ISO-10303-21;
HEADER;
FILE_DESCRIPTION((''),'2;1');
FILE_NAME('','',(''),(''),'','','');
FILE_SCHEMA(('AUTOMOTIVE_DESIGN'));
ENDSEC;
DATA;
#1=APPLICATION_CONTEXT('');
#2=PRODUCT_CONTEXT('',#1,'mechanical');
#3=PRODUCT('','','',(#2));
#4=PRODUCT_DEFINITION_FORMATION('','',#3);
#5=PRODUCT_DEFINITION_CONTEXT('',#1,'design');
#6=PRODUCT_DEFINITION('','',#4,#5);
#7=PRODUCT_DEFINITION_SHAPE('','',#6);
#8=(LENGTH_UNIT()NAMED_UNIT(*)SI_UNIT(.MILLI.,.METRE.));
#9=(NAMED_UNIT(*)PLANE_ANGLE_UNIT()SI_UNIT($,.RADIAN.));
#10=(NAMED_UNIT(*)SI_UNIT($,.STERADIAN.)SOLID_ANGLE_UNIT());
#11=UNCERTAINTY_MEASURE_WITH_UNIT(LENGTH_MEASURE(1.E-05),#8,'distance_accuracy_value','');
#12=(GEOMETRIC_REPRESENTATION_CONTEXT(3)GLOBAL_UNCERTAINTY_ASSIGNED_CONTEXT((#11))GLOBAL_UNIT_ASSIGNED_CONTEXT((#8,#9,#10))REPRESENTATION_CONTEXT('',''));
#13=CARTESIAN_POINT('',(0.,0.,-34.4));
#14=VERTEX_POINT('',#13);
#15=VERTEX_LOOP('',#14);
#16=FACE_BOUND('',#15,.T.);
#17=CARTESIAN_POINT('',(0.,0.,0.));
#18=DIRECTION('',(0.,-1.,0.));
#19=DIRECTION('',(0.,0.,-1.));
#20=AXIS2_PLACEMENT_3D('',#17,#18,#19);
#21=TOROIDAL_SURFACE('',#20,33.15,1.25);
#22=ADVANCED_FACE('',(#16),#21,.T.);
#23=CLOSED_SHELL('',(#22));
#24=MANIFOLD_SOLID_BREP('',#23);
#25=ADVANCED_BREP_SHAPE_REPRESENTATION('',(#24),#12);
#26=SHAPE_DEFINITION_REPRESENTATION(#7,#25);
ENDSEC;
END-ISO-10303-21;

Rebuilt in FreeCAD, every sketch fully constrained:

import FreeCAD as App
import Part
import Sketcher
Q = App.Units.Quantity

doc = App.newDocument("Part")
body = doc.addObject("PartDesign::Body", "Body")

# Sketch on XY plane
sketch1 = doc.addObject("Sketcher::SketchObject", "Sketch")
body.addObject(sketch1)
sketch1.AttachmentSupport = (doc.XY_Plane, [""])
sketch1.MapMode = "FlatFace"
sketch1.addGeometry(Part.Circle(App.Vector(33.15, 0, 0), App.Vector(0, 0, 1), 1.25), False)
sketch1.addConstraint(Sketcher.Constraint("PointOnObject", 0, 3, -1))
sketch1.addConstraint(Sketcher.Constraint("Diameter", 0, Q("2.5 mm")))
sketch1.addConstraint(Sketcher.Constraint("DistanceX", -1, 1, 0, 3, Q("33.15 mm")))
revolution = doc.addObject("PartDesign::Revolution", "Revolution")
body.addObject(revolution)
revolution.Profile = sketch1
revolution.ReferenceAxis = (sketch1, ["V_Axis"])
revolution.Angle = 360

doc.recompute()
